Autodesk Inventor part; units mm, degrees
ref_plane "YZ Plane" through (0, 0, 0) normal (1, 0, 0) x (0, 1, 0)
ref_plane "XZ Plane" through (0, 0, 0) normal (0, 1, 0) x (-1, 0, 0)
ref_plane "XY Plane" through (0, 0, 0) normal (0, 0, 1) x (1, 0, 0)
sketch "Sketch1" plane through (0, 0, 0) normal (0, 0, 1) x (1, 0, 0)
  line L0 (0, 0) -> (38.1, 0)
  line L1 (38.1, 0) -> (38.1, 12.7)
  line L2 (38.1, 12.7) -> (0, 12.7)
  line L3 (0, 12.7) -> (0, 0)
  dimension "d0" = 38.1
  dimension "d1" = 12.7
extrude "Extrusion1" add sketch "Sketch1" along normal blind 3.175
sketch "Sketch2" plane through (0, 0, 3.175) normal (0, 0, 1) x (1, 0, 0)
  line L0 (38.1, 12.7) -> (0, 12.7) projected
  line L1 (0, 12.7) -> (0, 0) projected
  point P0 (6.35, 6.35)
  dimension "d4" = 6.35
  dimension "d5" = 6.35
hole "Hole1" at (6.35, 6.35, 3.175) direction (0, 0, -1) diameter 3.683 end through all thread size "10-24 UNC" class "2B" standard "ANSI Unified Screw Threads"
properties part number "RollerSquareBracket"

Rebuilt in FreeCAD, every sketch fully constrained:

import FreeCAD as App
import Part
import Sketcher
Q = App.Units.Quantity


def add_polygon(sketch, points):
    """Adds a closed chain of lines whose ends are joined by coincident constraints."""
    first, n = sketch.GeometryCount, len(points)
    for a, b in zip(points, points[1:] + points[:1]):
        sketch.addGeometry(Part.LineSegment(App.Vector(*a, 0), App.Vector(*b, 0)), False)
    for i in range(n):
        sketch.addConstraint(Sketcher.Constraint("Coincident", first + i, 2, first + (i + 1) % n, 1))

doc = App.newDocument("Part")
body = doc.addObject("PartDesign::Body", "Body")

sketch1 = body.newObject("Sketcher::SketchObject", "Sketch")
sketch1.AttachmentSupport = (doc.getObject("XY_Plane"), [""])
sketch1.MapMode = "FlatFace"
add_polygon(sketch1, [(0, 13), (0, 0), (38, 0), (38, 13)])
sketch1.addConstraint([
    Sketcher.Constraint("Vertical", 0),
    Sketcher.Constraint("Horizontal", 1),
    Sketcher.Constraint("Vertical", 2),
    Sketcher.Constraint("Horizontal", 3),
    Sketcher.Constraint("Coincident", 0, 2, -1, 1),
    Sketcher.Constraint("DistanceX", 1, 1, 1, 2, Q("1.5 in")),
    Sketcher.Constraint("DistanceY", 0, 2, 0, 1, Q("0.5 in")),
])
pad1 = body.newObject("PartDesign::Pad", "Pad")
pad1.Profile = sketch1
pad1.Length = Q("0.125 in")

sketch2 = body.newObject("Sketcher::SketchObject", "Sketch001")
sketch2.AttachmentSupport = (doc.getObject("XY_Plane"), [""])
sketch2.MapMode = "FlatFace"
sketch2.AttachmentOffset = App.Placement(App.Vector(0, 0, 0.125 * 25.4), App.Rotation())
sketch2.addGeometry(Part.Circle(App.Vector(6.3, 6.3, 0), App.Vector(0, 0, 1), 1.8), False)
sketch2.addConstraint([
    Sketcher.Constraint("Diameter", 0, Q("0.145 in")),
    Sketcher.Constraint("DistanceX", -1, 1, 0, 3, Q("0.25 in")),
    Sketcher.Constraint("DistanceY", -1, 1, 0, 3, Q("0.25 in")),
])
doc.recompute()
hole = body.newObject("PartDesign::Hole", "Hole")
hole.Profile = sketch2
hole.ThreadType = "None"
hole.Diameter = Q("0.145 in")
hole.DepthType = "ThroughAll"

doc.recompute()
